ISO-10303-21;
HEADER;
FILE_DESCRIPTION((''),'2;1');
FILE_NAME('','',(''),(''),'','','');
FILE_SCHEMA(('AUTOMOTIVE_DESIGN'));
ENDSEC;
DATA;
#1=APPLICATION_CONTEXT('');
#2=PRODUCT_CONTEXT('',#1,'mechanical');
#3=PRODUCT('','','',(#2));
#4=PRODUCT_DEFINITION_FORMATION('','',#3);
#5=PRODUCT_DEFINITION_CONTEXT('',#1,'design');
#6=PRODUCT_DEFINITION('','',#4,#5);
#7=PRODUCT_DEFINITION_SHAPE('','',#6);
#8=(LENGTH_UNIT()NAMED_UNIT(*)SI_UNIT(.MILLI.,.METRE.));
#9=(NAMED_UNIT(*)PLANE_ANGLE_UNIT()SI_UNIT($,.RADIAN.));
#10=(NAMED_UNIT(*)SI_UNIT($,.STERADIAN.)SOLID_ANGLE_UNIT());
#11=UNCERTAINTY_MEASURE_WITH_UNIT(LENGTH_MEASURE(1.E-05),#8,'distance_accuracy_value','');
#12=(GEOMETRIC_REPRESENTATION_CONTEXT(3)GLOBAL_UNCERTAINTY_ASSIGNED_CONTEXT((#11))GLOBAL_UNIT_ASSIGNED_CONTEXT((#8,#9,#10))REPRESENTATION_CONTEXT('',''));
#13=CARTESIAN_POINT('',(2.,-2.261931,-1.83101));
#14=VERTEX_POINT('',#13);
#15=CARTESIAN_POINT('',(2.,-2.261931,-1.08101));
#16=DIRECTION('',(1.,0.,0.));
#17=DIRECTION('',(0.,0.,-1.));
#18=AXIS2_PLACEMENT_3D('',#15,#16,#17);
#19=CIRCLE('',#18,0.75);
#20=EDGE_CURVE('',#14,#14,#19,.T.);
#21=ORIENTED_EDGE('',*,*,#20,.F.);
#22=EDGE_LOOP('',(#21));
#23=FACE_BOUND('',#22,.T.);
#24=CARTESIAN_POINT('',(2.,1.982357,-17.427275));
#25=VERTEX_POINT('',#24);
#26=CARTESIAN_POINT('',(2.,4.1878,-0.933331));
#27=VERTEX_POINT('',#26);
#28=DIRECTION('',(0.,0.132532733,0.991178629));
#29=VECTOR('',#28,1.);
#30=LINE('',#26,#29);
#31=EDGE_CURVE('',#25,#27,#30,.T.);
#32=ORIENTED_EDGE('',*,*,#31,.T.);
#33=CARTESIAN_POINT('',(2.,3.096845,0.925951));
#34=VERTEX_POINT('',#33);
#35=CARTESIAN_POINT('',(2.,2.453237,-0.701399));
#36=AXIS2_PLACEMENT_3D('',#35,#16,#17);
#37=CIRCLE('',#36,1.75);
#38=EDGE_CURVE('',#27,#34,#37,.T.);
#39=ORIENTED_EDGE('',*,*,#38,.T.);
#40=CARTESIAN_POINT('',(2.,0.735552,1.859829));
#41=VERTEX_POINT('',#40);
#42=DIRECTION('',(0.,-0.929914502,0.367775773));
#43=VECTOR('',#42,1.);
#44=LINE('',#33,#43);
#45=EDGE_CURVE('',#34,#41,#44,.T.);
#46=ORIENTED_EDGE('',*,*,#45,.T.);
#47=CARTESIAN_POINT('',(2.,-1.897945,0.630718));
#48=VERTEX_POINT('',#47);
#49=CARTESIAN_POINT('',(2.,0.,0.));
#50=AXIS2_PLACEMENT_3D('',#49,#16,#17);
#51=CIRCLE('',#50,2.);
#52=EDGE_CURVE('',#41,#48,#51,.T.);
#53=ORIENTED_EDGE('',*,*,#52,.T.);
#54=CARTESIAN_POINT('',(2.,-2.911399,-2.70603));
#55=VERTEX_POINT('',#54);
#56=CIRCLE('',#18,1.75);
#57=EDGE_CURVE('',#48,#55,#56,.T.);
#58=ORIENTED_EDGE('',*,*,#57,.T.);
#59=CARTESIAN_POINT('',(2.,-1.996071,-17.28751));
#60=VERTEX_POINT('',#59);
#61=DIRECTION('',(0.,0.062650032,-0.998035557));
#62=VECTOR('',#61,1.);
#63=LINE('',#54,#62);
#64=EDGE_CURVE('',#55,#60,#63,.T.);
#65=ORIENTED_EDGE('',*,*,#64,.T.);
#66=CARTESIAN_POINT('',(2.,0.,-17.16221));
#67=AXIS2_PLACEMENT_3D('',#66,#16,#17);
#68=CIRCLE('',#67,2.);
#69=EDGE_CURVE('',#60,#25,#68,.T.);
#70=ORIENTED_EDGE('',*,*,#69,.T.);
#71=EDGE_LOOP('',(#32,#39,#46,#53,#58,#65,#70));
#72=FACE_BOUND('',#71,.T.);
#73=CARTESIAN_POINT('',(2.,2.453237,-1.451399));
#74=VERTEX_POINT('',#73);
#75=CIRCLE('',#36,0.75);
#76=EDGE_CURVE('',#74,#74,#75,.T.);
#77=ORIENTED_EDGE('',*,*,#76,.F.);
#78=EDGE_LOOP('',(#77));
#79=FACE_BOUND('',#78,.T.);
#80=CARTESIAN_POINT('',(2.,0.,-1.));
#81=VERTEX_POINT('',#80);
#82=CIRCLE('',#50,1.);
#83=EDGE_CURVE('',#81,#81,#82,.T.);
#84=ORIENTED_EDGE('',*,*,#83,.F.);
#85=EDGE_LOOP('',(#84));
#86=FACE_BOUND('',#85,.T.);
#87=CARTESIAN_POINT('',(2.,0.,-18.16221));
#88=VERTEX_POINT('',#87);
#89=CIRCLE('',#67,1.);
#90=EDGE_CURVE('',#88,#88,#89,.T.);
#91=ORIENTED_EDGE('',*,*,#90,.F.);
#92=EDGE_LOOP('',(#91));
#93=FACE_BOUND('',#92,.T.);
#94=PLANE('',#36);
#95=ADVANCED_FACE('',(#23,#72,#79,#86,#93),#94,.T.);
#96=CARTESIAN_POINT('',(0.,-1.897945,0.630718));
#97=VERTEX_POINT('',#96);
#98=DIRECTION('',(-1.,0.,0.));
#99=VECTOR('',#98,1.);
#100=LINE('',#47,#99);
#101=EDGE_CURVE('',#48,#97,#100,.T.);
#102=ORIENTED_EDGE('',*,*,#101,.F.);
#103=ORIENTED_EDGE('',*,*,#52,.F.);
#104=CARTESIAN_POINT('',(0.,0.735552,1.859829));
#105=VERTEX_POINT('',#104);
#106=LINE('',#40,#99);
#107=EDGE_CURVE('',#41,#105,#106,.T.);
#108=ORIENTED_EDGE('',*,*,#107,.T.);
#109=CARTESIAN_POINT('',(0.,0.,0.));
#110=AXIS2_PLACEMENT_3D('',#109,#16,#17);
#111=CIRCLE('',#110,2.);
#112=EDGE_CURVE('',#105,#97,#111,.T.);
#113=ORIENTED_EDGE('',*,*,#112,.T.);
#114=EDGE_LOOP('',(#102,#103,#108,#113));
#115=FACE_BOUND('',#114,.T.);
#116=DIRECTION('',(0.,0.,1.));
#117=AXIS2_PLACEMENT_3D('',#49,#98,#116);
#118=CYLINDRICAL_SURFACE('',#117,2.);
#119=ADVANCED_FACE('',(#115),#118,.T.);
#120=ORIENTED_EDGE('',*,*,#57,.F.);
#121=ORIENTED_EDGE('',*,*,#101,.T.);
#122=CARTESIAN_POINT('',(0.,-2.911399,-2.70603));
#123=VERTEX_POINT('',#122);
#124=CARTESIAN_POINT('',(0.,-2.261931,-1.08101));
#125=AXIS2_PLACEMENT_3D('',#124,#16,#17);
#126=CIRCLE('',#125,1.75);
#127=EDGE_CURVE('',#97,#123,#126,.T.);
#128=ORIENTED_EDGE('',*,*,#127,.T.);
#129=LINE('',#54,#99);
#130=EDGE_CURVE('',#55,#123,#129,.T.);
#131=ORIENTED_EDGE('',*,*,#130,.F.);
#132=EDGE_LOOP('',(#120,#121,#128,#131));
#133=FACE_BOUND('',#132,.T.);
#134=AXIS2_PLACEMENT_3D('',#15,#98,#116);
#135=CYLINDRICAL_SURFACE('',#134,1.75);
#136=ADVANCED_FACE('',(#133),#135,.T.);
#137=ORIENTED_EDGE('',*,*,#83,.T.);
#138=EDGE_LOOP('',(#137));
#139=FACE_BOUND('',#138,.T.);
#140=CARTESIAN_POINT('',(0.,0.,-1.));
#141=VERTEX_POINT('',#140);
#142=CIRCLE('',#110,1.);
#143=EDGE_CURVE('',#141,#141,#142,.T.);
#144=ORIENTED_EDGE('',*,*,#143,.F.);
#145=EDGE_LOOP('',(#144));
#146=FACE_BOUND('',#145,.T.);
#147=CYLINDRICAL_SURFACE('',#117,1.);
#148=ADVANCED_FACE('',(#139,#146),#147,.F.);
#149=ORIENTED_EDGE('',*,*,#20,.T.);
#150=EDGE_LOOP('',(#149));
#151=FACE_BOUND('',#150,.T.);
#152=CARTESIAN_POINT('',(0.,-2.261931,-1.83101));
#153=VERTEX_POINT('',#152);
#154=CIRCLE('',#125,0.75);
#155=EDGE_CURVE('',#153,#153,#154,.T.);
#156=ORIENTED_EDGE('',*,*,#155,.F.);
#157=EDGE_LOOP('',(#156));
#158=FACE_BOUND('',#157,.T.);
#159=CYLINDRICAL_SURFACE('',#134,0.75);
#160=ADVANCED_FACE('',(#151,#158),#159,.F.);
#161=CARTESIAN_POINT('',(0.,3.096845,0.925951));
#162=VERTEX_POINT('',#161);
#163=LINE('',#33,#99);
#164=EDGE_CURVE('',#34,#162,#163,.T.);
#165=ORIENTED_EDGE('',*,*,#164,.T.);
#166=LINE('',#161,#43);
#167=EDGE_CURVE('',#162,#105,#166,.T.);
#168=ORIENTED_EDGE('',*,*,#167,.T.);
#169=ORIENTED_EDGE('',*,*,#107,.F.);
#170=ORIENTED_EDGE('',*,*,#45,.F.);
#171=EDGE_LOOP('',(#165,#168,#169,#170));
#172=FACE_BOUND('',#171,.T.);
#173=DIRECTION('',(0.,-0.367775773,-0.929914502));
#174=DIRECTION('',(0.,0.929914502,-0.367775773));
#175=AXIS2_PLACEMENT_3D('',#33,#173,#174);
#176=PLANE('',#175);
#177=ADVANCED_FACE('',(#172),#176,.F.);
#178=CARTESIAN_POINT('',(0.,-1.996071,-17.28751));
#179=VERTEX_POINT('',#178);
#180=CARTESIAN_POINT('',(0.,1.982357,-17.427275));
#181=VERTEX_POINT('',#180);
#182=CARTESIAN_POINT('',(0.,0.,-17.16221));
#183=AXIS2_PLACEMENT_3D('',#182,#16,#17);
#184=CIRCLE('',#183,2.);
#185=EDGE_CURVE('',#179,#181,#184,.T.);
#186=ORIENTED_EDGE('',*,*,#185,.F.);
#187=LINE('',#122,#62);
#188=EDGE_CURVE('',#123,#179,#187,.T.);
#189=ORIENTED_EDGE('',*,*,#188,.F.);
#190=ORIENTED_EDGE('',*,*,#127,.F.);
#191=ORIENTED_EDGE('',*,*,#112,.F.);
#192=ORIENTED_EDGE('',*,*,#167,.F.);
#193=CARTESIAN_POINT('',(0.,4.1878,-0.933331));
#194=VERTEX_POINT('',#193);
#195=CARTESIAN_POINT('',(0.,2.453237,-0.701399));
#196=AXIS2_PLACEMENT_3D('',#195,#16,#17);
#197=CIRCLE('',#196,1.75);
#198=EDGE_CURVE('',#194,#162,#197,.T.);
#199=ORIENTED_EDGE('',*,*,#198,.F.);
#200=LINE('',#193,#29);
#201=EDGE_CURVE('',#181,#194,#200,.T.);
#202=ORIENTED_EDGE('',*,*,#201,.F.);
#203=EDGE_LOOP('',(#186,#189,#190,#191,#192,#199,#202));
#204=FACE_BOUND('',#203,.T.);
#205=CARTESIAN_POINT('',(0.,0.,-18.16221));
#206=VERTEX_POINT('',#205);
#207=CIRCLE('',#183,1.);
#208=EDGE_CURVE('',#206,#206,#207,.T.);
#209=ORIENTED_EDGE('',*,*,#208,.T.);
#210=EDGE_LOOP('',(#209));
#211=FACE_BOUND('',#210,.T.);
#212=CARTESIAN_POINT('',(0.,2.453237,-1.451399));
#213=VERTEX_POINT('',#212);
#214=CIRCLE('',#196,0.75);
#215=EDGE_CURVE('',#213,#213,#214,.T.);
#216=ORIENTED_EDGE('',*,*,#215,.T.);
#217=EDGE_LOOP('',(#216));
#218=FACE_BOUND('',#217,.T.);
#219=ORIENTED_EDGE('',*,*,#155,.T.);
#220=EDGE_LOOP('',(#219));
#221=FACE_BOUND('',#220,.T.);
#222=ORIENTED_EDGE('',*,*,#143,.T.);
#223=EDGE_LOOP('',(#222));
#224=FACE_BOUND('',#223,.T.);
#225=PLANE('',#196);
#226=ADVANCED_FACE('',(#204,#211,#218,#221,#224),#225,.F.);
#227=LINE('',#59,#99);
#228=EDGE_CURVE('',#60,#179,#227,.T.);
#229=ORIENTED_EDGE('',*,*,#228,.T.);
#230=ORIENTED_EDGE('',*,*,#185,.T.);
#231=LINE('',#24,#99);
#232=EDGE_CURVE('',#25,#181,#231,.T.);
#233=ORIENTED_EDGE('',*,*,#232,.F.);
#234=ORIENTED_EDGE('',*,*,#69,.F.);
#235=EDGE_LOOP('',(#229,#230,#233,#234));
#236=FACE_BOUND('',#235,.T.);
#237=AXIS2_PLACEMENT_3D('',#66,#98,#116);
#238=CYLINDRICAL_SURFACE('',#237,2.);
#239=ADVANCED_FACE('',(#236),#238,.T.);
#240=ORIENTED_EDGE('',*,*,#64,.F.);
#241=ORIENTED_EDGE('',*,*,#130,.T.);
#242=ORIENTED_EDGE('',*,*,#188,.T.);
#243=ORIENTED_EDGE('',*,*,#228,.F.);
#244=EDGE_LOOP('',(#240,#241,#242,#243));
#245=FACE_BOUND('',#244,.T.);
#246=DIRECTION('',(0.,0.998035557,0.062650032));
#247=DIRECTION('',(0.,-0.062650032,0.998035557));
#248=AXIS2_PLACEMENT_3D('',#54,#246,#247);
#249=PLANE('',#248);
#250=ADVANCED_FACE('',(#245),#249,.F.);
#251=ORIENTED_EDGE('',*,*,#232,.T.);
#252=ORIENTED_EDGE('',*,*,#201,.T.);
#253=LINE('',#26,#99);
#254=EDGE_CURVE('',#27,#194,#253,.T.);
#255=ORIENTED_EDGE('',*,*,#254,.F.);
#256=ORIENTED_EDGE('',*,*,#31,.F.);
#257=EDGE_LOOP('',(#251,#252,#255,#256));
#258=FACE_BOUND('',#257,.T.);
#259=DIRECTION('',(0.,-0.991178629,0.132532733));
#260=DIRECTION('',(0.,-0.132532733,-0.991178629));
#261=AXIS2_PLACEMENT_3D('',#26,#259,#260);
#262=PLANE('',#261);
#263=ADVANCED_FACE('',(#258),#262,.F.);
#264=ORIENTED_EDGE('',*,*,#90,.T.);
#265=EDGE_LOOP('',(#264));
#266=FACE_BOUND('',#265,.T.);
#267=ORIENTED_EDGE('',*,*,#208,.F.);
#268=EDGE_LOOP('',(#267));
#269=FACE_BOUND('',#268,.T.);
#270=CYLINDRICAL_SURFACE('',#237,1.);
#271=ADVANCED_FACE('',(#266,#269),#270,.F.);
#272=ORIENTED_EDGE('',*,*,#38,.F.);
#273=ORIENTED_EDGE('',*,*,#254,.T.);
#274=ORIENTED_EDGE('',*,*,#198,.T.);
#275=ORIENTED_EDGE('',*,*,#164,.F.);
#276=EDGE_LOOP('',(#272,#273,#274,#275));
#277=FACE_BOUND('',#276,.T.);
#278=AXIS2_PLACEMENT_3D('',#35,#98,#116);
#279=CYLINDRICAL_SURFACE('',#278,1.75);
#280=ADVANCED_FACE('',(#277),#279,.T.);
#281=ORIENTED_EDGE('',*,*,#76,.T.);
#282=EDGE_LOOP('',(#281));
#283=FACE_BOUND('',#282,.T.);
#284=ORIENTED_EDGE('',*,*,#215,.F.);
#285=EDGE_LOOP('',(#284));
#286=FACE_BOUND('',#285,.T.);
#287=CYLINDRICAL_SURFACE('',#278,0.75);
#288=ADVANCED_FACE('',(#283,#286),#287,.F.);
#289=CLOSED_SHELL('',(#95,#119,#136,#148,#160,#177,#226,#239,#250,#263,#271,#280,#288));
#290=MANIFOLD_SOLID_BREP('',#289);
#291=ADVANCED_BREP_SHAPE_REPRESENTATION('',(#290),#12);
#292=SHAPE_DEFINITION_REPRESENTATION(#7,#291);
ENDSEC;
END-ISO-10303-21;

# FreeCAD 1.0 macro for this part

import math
import FreeCAD as App
import Part
import Sketcher
from FreeCAD import Vector

doc = App.newDocument("Part")
params = doc.addObject("Spreadsheet::Sheet", "Params")
for row, (alias, value) in enumerate([
    ("sketch1_diameter", "2 mm"),
    ("sketch1_radius", "2 mm"),
    ("sketch1_diameter2", "1.5 mm"),
    ("sketch1_radius2", "1.75 mm"),
    ("pad1_length", "2 mm"),
], start=1):
    params.set(f"A{row}", alias)
    params.set(f"B{row}", "=" + value)
    params.setAlias(f"B{row}", alias)

body = doc.addObject("PartDesign::Body", "Body")

# Sketch on YZ plane
sketch1 = body.newObject("Sketcher::SketchObject", "Sketch")
sketch1.AttachmentSupport = (doc.getObject("YZ_Plane"), [""])
sketch1.MapMode = "FlatFace"
sketch1.addGeometry([
    Part.LineSegment(Vector(-2.9, -2.7, 0), Vector(-2, -17.3, 0)),  # 0
    Part.ArcOfCircle(Part.Circle(Vector(0, -17.2, 0), Vector(0, 0, 1), 2), math.radians(-176), math.radians(-8)),  # 1
    Part.LineSegment(Vector(2, -17.4, 0), Vector(4.2, -0.9, 0)),  # 2
    Part.ArcOfCircle(Part.Circle(Vector(2.5, -0.7, 0), Vector(0, 0, 1), 1.7), math.radians(-8), math.radians(68)),  # 3
    Part.LineSegment(Vector(3.1, 0.9, 0), Vector(0.7, 1.9, 0)),  # 4
    Part.ArcOfCircle(Part.Circle(Vector(0, 0, 0), Vector(0, 0, 1), 2), math.radians(68), math.radians(162)),  # 5
    Part.ArcOfCircle(Part.Circle(Vector(-2.3, -1.1, 0), Vector(0, 0, 1), 1.8), math.radians(78), math.radians(248)),  # 6
    Part.Circle(Vector(-2.3, -1.1, 0), Vector(0, 0, 1), 0.8),  # 7
    Part.Circle(Vector(0, 0, 0), Vector(0, 0, 1), 1),  # 8
    Part.Circle(Vector(0, -17.2, 0), Vector(0, 0, 1), 1),  # 9
    Part.Circle(Vector(2.5, -0.7, 0), Vector(0, 0, 1), 0.8),  # 10
], False)
sketch1.addConstraint([
    Sketcher.Constraint("Tangent", 0, 2, 1, 1),
    Sketcher.Constraint("Tangent", 1, 2, 2, 1),
    Sketcher.Constraint("Tangent", 2, 2, 3, 1),
    Sketcher.Constraint("Tangent", 3, 2, 4, 1),
    Sketcher.Constraint("Tangent", 4, 2, 5, 1),
    Sketcher.Constraint("Coincident", 5, 2, 6, 1),
    Sketcher.Constraint("Coincident", 6, 2, 0, 1),
    Sketcher.Constraint("Coincident", 5, 3, -1, 1),
    Sketcher.Constraint("Coincident", 8, 3, -1, 1),
    Sketcher.Constraint("Coincident", 7, 3, 6, 3),
    Sketcher.Constraint("Coincident", 9, 3, 1, 3),
    Sketcher.Constraint("Coincident", 10, 3, 3, 3),
    Sketcher.Constraint("Equal", 1, 5),
    Sketcher.Constraint("Equal", 3, 6),
    Sketcher.Constraint("Equal", 8, 9),
    Sketcher.Constraint("Equal", 7, 10),
    Sketcher.Constraint("PointOnObject", 1, 3, -2),
    Sketcher.Constraint("Diameter", 8, 2.0),
    Sketcher.Constraint("Radius", 1, 2.0),
    Sketcher.Constraint("Diameter", 7, 1.5),
    Sketcher.Constraint("Radius", 3, 1.75),
    Sketcher.Constraint("DistanceY", 3, 3, -1, 1, 0.701399),
    Sketcher.Constraint("DistanceX", -1, 1, 2, 2, 4.1878),
    Sketcher.Constraint("DistanceX", 6, 2, -1, 1, 2.911399),
    Sketcher.Constraint("DistanceY", 1, 3, 6, 3, 16.081199),
    Sketcher.Constraint("Distance", 0, 14.61018),
    Sketcher.Constraint("DistanceY", 1, 3, -1, 1, 17.16221),
])
sketch1.setExpression("Constraints[17]", "Params.sketch1_diameter")
sketch1.setExpression("Constraints[18]", "Params.sketch1_radius")
sketch1.setExpression("Constraints[19]", "Params.sketch1_diameter2")
sketch1.setExpression("Constraints[20]", "Params.sketch1_radius2")
pad1 = body.newObject("PartDesign::Pad", "Pad")
pad1.Profile = sketch1
pad1.setExpression("Length", "Params.pad1_length")

doc.recompute()
